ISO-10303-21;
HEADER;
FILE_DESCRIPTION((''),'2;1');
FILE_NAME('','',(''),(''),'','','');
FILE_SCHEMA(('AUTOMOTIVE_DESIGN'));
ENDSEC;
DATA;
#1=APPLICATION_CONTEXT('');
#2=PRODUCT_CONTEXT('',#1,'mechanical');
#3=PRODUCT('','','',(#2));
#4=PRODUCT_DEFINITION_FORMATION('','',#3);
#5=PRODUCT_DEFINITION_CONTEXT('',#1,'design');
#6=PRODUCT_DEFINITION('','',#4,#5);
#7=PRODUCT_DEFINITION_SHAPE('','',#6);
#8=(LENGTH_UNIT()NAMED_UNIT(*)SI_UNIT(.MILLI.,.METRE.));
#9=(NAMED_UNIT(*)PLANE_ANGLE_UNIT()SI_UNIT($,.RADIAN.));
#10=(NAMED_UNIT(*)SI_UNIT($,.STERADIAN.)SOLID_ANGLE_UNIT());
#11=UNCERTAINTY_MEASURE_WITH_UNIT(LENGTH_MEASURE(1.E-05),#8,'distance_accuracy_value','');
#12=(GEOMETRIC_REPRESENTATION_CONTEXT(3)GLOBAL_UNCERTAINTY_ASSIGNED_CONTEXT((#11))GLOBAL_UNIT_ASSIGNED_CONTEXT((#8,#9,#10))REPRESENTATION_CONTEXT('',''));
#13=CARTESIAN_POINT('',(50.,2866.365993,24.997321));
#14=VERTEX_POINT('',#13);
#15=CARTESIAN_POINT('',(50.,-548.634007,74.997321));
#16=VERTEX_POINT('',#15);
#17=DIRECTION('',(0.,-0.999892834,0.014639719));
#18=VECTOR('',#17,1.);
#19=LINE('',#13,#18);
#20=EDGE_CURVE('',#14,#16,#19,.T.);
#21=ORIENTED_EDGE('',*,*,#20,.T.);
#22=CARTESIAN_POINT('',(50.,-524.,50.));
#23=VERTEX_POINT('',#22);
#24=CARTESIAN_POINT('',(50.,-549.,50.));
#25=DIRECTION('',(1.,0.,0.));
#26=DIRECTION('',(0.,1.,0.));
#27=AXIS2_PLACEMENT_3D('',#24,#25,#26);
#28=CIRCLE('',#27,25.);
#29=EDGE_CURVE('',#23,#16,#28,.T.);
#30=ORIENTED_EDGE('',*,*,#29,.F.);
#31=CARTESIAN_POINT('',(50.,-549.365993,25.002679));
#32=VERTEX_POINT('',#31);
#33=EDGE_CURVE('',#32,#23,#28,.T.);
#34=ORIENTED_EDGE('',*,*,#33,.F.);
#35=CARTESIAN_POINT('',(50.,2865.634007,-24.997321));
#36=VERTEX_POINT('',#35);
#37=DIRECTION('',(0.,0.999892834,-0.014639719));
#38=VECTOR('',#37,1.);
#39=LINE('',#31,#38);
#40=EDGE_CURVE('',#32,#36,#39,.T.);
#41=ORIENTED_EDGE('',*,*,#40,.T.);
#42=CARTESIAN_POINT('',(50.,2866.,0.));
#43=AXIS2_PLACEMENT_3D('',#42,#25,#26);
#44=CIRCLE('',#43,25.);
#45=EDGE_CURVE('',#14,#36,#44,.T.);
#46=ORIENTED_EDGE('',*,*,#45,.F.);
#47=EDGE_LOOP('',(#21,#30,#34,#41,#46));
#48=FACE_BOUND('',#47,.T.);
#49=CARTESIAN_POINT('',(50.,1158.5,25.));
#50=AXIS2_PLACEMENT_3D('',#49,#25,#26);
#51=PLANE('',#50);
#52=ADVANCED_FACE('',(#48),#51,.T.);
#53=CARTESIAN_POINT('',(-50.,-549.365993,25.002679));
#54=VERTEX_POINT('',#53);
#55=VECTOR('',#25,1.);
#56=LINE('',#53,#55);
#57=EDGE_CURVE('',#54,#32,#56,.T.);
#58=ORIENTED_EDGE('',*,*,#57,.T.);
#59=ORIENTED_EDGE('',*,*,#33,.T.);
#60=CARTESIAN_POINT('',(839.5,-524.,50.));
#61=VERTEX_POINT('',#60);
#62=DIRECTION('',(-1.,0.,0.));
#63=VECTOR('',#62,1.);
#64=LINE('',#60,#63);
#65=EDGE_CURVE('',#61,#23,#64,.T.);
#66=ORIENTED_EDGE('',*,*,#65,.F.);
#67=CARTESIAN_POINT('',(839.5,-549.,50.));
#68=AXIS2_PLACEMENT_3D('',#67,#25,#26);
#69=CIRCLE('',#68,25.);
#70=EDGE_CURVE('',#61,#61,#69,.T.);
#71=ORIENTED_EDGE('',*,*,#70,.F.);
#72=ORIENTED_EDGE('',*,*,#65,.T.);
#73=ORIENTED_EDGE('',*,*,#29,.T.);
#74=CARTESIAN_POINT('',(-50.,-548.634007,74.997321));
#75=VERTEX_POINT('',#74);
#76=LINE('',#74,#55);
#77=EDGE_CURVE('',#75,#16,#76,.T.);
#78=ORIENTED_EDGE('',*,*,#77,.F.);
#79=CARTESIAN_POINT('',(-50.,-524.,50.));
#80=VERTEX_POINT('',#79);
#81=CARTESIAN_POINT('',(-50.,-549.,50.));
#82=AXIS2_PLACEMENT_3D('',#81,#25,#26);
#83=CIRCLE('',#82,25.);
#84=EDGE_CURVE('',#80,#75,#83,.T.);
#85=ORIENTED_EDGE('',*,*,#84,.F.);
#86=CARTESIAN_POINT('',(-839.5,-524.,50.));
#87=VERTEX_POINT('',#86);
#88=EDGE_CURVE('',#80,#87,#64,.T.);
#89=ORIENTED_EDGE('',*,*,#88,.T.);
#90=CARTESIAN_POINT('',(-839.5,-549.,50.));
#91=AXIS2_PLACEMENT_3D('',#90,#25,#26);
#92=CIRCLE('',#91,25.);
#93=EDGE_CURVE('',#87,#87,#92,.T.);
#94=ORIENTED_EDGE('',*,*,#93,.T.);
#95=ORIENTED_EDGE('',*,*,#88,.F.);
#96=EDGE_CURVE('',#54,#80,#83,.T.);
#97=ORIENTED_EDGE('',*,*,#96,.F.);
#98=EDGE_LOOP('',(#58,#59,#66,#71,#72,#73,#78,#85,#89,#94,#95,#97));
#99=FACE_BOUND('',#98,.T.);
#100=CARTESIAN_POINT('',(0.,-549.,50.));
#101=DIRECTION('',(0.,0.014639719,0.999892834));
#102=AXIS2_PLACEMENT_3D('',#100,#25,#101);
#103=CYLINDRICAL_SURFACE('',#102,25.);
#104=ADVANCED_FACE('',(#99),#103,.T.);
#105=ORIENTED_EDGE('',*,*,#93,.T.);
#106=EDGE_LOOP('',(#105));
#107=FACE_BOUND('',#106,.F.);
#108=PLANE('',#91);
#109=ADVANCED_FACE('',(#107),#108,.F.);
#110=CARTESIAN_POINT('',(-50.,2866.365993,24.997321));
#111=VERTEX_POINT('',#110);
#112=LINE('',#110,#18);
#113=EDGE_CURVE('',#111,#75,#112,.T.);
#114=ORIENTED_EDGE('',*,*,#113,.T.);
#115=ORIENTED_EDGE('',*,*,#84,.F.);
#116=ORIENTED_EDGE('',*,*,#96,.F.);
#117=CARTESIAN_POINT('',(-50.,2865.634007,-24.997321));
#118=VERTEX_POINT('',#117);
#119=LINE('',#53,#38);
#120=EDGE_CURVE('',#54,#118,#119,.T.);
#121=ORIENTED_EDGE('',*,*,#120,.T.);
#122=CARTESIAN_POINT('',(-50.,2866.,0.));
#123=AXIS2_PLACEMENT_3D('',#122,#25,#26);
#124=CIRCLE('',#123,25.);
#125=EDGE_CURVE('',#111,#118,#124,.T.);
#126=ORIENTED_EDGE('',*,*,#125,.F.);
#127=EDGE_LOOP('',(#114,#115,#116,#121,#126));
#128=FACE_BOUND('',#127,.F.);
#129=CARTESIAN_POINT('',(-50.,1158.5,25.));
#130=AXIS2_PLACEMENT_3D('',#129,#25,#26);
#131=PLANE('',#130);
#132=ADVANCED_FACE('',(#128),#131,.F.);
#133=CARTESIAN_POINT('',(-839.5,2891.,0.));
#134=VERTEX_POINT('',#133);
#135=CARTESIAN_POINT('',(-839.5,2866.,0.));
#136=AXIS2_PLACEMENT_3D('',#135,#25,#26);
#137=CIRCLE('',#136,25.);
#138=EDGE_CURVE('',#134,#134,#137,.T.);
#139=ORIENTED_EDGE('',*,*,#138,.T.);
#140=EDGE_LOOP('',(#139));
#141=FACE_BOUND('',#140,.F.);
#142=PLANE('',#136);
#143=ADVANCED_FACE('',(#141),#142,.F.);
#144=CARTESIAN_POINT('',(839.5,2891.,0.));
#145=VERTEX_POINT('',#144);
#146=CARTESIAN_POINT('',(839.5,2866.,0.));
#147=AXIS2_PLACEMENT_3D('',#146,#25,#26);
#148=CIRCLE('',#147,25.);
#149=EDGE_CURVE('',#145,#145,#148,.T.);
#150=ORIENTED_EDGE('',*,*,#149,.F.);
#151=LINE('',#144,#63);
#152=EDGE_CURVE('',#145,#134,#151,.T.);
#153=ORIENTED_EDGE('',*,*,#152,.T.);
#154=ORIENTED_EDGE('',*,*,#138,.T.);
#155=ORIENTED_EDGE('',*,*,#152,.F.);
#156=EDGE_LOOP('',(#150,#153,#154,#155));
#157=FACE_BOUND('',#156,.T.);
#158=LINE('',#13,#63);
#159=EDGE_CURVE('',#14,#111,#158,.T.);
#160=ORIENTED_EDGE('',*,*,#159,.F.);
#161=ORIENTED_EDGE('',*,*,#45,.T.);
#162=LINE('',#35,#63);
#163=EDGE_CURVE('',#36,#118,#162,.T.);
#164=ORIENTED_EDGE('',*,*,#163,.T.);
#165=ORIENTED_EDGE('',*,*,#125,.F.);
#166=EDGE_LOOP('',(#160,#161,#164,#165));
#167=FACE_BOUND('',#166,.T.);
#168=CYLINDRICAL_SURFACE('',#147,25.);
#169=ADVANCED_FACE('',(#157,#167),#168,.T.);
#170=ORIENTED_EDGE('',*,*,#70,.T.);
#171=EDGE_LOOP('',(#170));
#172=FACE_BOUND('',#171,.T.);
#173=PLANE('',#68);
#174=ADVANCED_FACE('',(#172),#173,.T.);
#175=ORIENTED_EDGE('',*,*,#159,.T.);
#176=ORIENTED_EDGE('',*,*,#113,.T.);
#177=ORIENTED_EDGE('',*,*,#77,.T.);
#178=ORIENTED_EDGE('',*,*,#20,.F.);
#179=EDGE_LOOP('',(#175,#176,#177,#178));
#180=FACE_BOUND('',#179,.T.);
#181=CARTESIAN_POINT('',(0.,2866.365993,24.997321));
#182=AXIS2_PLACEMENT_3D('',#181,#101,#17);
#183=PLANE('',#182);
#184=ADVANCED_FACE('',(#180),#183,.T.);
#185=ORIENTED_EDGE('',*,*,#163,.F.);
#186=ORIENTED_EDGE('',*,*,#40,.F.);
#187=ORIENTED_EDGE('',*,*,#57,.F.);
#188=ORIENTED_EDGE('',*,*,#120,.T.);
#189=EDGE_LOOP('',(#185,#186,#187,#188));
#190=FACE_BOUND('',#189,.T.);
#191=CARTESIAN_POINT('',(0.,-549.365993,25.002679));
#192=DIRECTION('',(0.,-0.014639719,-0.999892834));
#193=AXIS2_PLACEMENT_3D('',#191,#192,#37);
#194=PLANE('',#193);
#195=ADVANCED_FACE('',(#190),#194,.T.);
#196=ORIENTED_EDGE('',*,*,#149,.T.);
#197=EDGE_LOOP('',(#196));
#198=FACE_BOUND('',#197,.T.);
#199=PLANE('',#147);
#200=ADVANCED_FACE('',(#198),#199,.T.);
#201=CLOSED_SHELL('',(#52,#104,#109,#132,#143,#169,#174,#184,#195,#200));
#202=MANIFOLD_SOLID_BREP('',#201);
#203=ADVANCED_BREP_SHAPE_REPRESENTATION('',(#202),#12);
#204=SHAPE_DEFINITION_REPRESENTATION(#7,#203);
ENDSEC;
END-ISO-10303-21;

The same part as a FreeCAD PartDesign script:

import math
import FreeCAD as App
import Part
import Sketcher
from FreeCAD import Vector

doc = App.newDocument("Part")
body = doc.addObject("PartDesign::Body", "Body")

sketch1 = doc.addObject("Sketcher::SketchObject", "Sketch")
body.addObject(sketch1)
sketch1.AttachmentSupport = (doc.YZ_Plane, [""])
sketch1.MapMode = "FlatFace"
sketch1.AttachmentOffset = App.Placement(Vector(0, 0, 839.5), App.Rotation())
sketch1.addGeometry(Part.Circle(Vector(-549, 50, 0), Vector(0, 0, 1), 25), False)
sketch1.addConstraint(Sketcher.Constraint("Diameter", 0, 50.0))
sketch1.addConstraint(Sketcher.Constraint("DistanceX", 0, 3, -1, 1, 549.0))
sketch1.addConstraint(Sketcher.Constraint("DistanceY", -1, 1, 0, 3, 50.0))
pad1 = doc.addObject("PartDesign::Pad", "Pad")
body.addObject(pad1)
pad1.Profile = sketch1
pad1.Length = 1679
pad1.Reversed = True
body2 = doc.addObject("PartDesign::Body", "Body001")

sketch2 = doc.addObject("Sketcher::SketchObject", "Sketch001")
body2.addObject(sketch2)
sketch2.AttachmentSupport = (doc.getObject("YZ_Plane001"), [""])
sketch2.MapMode = "FlatFace"
sketch2.AttachmentOffset = App.Placement(Vector(0, 0, 839.5), App.Rotation())
sketch2.addGeometry(Part.Circle(Vector(2866, 0, 0), Vector(0, 0, 1), 25), False)
sketch2.addConstraint(Sketcher.Constraint("PointOnObject", 0, 3, -1))
sketch2.addConstraint(Sketcher.Constraint("Diameter", 0, 50.0))
sketch2.addConstraint(Sketcher.Constraint("DistanceX", -1, 1, 0, 3, 2866.0))
pad2 = doc.addObject("PartDesign::Pad", "Pad001")
body2.addObject(pad2)
pad2.Profile = sketch2
pad2.Length = 1679
pad2.Reversed = True
body.AllowCompound = True
doc.recompute()

boolean = doc.addObject("PartDesign::Boolean", "Boolean")
body.addObject(boolean)
boolean.Type = "Fuse"
boolean.addObjects([body2])

sketch3 = doc.addObject("Sketcher::SketchObject", "Sketch002")
body.addObject(sketch3)
sketch3.AttachmentSupport = (doc.YZ_Plane, [""])
sketch3.MapMode = "FlatFace"
sketch3.addGeometry(Part.LineSegment(Vector(2866, 25, 0), Vector(-549, 75, 0)), False)
sketch3.addGeometry(Part.ArcOfCircle(Part.Circle(Vector(-549, 50, 0), Vector(0, 0, 1), 25), math.radians(89), math.radians(269)), False)
sketch3.addGeometry(Part.LineSegment(Vector(-549, 25, 0), Vector(2866, -25, 0)), False)
sketch3.addGeometry(Part.ArcOfCircle(Part.Circle(Vector(2866, 0, 0), Vector(0, 0, 1), 25), math.radians(-91), math.radians(89)), False)
sketch3.addConstraint(Sketcher.Constraint("Tangent", 0, 2, 1, 1))
sketch3.addConstraint(Sketcher.Constraint("Tangent", 1, 2, 2, 1))
sketch3.addConstraint(Sketcher.Constraint("Tangent", 2, 2, 3, 1))
sketch3.addConstraint(Sketcher.Constraint("Tangent", 3, 2, 0, 1))
sketch3.addConstraint(Sketcher.Constraint("Equal", 1, 3))
sketch3.addConstraint(Sketcher.Constraint("PointOnObject", 3, 3, -1))
sketch3.addConstraint(Sketcher.Constraint("Radius", 1, 25.0))
sketch3.addConstraint(Sketcher.Constraint("DistanceX", 1, 3, -1, 1, 549.0))
sketch3.addConstraint(Sketcher.Constraint("DistanceY", -1, 1, 1, 3, 50.0))
sketch3.addConstraint(Sketcher.Constraint("DistanceX", -1, 1, 3, 3, 2866.0))
pad3 = doc.addObject("PartDesign::Pad", "Pad002")
body.addObject(pad3)
pad3.Profile = sketch3
pad3.Length = 100
pad3.Midplane = True

doc.recompute()
